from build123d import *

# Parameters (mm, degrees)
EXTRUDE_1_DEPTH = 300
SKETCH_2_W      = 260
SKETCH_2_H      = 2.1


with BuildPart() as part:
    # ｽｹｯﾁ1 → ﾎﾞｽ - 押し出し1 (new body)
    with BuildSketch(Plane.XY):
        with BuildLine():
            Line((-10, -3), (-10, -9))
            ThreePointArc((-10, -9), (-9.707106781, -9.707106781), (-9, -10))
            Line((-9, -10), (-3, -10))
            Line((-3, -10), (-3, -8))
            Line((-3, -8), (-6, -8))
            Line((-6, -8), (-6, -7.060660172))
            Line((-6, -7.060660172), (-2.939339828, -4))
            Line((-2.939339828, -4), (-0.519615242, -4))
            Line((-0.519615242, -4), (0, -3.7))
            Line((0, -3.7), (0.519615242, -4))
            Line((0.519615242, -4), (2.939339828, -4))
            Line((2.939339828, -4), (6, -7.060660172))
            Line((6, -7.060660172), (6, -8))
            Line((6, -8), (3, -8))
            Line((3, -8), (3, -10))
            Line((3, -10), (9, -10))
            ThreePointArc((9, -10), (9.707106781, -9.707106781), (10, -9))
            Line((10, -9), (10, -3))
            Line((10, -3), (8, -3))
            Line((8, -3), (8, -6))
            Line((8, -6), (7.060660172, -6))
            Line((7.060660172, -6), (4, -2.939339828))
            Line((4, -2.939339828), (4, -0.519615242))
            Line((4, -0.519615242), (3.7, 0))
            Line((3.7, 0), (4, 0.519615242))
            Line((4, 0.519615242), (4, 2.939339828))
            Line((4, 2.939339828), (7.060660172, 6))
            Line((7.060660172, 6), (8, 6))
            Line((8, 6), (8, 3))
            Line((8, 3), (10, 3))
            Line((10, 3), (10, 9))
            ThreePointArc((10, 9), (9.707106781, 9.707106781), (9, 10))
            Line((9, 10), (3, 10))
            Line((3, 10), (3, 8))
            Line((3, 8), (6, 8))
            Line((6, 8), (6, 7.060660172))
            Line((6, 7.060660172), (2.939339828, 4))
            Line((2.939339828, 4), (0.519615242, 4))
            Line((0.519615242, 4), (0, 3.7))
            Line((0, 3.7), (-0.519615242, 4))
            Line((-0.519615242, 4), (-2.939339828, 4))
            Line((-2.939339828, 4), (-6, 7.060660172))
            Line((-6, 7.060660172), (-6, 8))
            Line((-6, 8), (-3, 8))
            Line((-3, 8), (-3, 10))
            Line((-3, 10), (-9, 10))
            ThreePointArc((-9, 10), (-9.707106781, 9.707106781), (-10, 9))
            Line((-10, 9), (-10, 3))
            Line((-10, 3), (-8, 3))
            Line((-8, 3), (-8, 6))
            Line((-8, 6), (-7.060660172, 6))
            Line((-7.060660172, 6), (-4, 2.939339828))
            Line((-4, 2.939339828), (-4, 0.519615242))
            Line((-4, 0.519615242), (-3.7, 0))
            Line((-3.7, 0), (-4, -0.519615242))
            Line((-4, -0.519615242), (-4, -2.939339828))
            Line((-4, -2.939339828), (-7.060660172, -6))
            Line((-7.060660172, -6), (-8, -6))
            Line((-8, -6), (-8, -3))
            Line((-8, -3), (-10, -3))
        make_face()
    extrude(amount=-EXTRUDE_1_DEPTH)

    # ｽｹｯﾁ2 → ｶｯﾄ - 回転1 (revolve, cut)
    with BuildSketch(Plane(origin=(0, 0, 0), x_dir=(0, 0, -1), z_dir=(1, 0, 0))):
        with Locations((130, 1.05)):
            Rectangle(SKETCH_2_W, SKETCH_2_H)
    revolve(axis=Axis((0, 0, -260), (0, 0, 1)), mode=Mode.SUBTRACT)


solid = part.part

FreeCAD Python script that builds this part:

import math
import FreeCAD as App
import Part
import Sketcher
from FreeCAD import Vector
Q = App.Units.Quantity

doc = App.newDocument("Part")
body = doc.addObject("PartDesign::Body", "Body")

# Sketch on XY plane
sketch1 = body.newObject("Sketcher::SketchObject", "Sketch")
sketch1.AttachmentSupport = (doc.getObject("XY_Plane"), [""])
sketch1.MapMode = "FlatFace"
sketch1.addGeometry([
    Part.LineSegment(Vector(-10, -3, 0), Vector(-10, -9, 0)),  # 0
    Part.ArcOfCircle(Part.Circle(Vector(-9, -9, 0), Vector(0, 0, 1), 1), math.radians(-180), math.radians(-90)),  # 1
    Part.LineSegment(Vector(-9, -10, 0), Vector(-3, -10, 0)),  # 2
    Part.LineSegment(Vector(-3, -10, 0), Vector(-3, -8, 0)),  # 3
    Part.LineSegment(Vector(-3, -8, 0), Vector(-6, -8, 0)),  # 4
    Part.LineSegment(Vector(-6, -8, 0), Vector(-6, -7.1, 0)),  # 5
    Part.LineSegment(Vector(-6, -7.1, 0), Vector(-2.9, -4, 0)),  # 6
    Part.LineSegment(Vector(-2.9, -4, 0), Vector(-0.5, -4, 0)),  # 7
    Part.LineSegment(Vector(-0.5, -4, 0), Vector(0, -3.7, 0)),  # 8
    Part.LineSegment(Vector(0, -3.7, 0), Vector(0.5, -4, 0)),  # 9
    Part.LineSegment(Vector(0.5, -4, 0), Vector(2.9, -4, 0)),  # 10
    Part.LineSegment(Vector(2.9, -4, 0), Vector(6, -7.1, 0)),  # 11
    Part.LineSegment(Vector(6, -7.1, 0), Vector(6, -8, 0)),  # 12
    Part.LineSegment(Vector(6, -8, 0), Vector(3, -8, 0)),  # 13
    Part.LineSegment(Vector(3, -8, 0), Vector(3, -10, 0)),  # 14
    Part.LineSegment(Vector(3, -10, 0), Vector(9, -10, 0)),  # 15
    Part.ArcOfCircle(Part.Circle(Vector(9, -9, 0), Vector(0, 0, 1), 1), math.radians(-90), math.radians(0)),  # 16
    Part.LineSegment(Vector(10, -9, 0), Vector(10, -3, 0)),  # 17
    Part.LineSegment(Vector(10, -3, 0), Vector(8, -3, 0)),  # 18
    Part.LineSegment(Vector(8, -3, 0), Vector(8, -6, 0)),  # 19
    Part.LineSegment(Vector(8, -6, 0), Vector(7.1, -6, 0)),  # 20
    Part.LineSegment(Vector(7.1, -6, 0), Vector(4, -2.9, 0)),  # 21
    Part.LineSegment(Vector(4, -2.9, 0), Vector(4, -0.5, 0)),  # 22
    Part.LineSegment(Vector(4, -0.5, 0), Vector(3.7, 0, 0)),  # 23
    Part.LineSegment(Vector(3.7, 0, 0), Vector(4, 0.5, 0)),  # 24
    Part.LineSegment(Vector(4, 0.5, 0), Vector(4, 2.9, 0)),  # 25
    Part.LineSegment(Vector(4, 2.9, 0), Vector(7.1, 6, 0)),  # 26
    Part.LineSegment(Vector(7.1, 6, 0), Vector(8, 6, 0)),  # 27
    Part.LineSegment(Vector(8, 6, 0), Vector(8, 3, 0)),  # 28
    Part.LineSegment(Vector(8, 3, 0), Vector(10, 3, 0)),  # 29
    Part.LineSegment(Vector(10, 3, 0), Vector(10, 9, 0)),  # 30
    Part.ArcOfCircle(Part.Circle(Vector(9, 9, 0), Vector(0, 0, 1), 1), math.radians(0), math.radians(90)),  # 31
    Part.LineSegment(Vector(9, 10, 0), Vector(3, 10, 0)),  # 32
    Part.LineSegment(Vector(3, 10, 0), Vector(3, 8, 0)),  # 33
    Part.LineSegment(Vector(3, 8, 0), Vector(6, 8, 0)),  # 34
    Part.LineSegment(Vector(6, 8, 0), Vector(6, 7.1, 0)),  # 35
    Part.LineSegment(Vector(6, 7.1, 0), Vector(2.9, 4, 0)),  # 36
    Part.LineSegment(Vector(2.9, 4, 0), Vector(0.5, 4, 0)),  # 37
    Part.LineSegment(Vector(0.5, 4, 0), Vector(0, 3.7, 0)),  # 38
    Part.LineSegment(Vector(0, 3.7, 0), Vector(-0.5, 4, 0)),  # 39
    Part.LineSegment(Vector(-0.5, 4, 0), Vector(-2.9, 4, 0)),  # 40
    Part.LineSegment(Vector(-2.9, 4, 0), Vector(-6, 7.1, 0)),  # 41
    Part.LineSegment(Vector(-6, 7.1, 0), Vector(-6, 8, 0)),  # 42
    Part.LineSegment(Vector(-6, 8, 0), Vector(-3, 8, 0)),  # 43
    Part.LineSegment(Vector(-3, 8, 0), Vector(-3, 10, 0)),  # 44
    Part.LineSegment(Vector(-3, 10, 0), Vector(-9, 10, 0)),  # 45
    Part.ArcOfCircle(Part.Circle(Vector(-9, 9, 0), Vector(0, 0, 1), 1), math.radians(90), math.radians(180)),  # 46
    Part.LineSegment(Vector(-10, 9, 0), Vector(-10, 3, 0)),  # 47
    Part.LineSegment(Vector(-10, 3, 0), Vector(-8, 3, 0)),  # 48
    Part.LineSegment(Vector(-8, 3, 0), Vector(-8, 6, 0)),  # 49
    Part.LineSegment(Vector(-8, 6, 0), Vector(-7.1, 6, 0)),  # 50
    Part.LineSegment(Vector(-7.1, 6, 0), Vector(-4, 2.9, 0)),  # 51
    Part.LineSegment(Vector(-4, 2.9, 0), Vector(-4, 0.5, 0)),  # 52
    Part.LineSegment(Vector(-4, 0.5, 0), Vector(-3.7, 0, 0)),  # 53
    Part.LineSegment(Vector(-3.7, 0, 0), Vector(-4, -0.5, 0)),  # 54
    Part.LineSegment(Vector(-4, -0.5, 0), Vector(-4, -2.9, 0)),  # 55
    Part.LineSegment(Vector(-4, -2.9, 0), Vector(-7.1, -6, 0)),  # 56
    Part.LineSegment(Vector(-7.1, -6, 0), Vector(-8, -6, 0)),  # 57
    Part.LineSegment(Vector(-8, -6, 0), Vector(-8, -3, 0)),  # 58
    Part.LineSegment(Vector(-8, -3, 0), Vector(-10, -3, 0)),  # 59
], False)
sketch1.addConstraint([
    Sketcher.Constraint("Tangent", 0, 2, 1, 1),
    Sketcher.Constraint("Tangent", 1, 2, 2, 1),
    Sketcher.Constraint("Coincident", 2, 2, 3, 1),
    Sketcher.Constraint("Coincident", 3, 2, 4, 1),
    Sketcher.Constraint("Coincident", 4, 2, 5, 1),
    Sketcher.Constraint("Coincident", 5, 2, 6, 1),
    Sketcher.Constraint("Coincident", 6, 2, 7, 1),
    Sketcher.Constraint("Coincident", 7, 2, 8, 1),
    Sketcher.Constraint("Coincident", 8, 2, 9, 1),
    Sketcher.Constraint("Coincident", 9, 2, 10, 1),
    Sketcher.Constraint("Coincident", 10, 2, 11, 1),
    Sketcher.Constraint("Coincident", 11, 2, 12, 1),
    Sketcher.Constraint("Coincident", 12, 2, 13, 1),
    Sketcher.Constraint("Coincident", 13, 2, 14, 1),
    Sketcher.Constraint("Coincident", 14, 2, 15, 1),
    Sketcher.Constraint("Tangent", 15, 2, 16, 1),
    Sketcher.Constraint("Tangent", 16, 2, 17, 1),
    Sketcher.Constraint("Coincident", 17, 2, 18, 1),
    Sketcher.Constraint("Coincident", 18, 2, 19, 1),
    Sketcher.Constraint("Coincident", 19, 2, 20, 1),
    Sketcher.Constraint("Coincident", 20, 2, 21, 1),
    Sketcher.Constraint("Coincident", 21, 2, 22, 1),
    Sketcher.Constraint("Coincident", 22, 2, 23, 1),
    Sketcher.Constraint("Coincident", 23, 2, 24, 1),
    Sketcher.Constraint("Coincident", 24, 2, 25, 1),
    Sketcher.Constraint("Coincident", 25, 2, 26, 1),
    Sketcher.Constraint("Coincident", 26, 2, 27, 1),
    Sketcher.Constraint("Coincident", 27, 2, 28, 1),
    Sketcher.Constraint("Coincident", 28, 2, 29, 1),
    Sketcher.Constraint("Coincident", 29, 2, 30, 1),
    Sketcher.Constraint("Tangent", 30, 2, 31, 1),
    Sketcher.Constraint("Tangent", 31, 2, 32, 1),
    Sketcher.Constraint("Coincident", 32, 2, 33, 1),
    Sketcher.Constraint("Coincident", 33, 2, 34, 1),
    Sketcher.Constraint("Coincident", 34, 2, 35, 1),
    Sketcher.Constraint("Coincident", 35, 2, 36, 1),
    Sketcher.Constraint("Coincident", 36, 2, 37, 1),
    Sketcher.Constraint("Coincident", 37, 2, 38, 1),
    Sketcher.Constraint("Coincident", 38, 2, 39, 1),
    Sketcher.Constraint("Coincident", 39, 2, 40, 1),
    Sketcher.Constraint("Coincident", 40, 2, 41, 1),
    Sketcher.Constraint("Coincident", 41, 2, 42, 1),
    Sketcher.Constraint("Coincident", 42, 2, 43, 1),
    Sketcher.Constraint("Coincident", 43, 2, 44, 1),
    Sketcher.Constraint("Coincident", 44, 2, 45, 1),
    Sketcher.Constraint("Tangent", 45, 2, 46, 1),
    Sketcher.Constraint("Tangent", 46, 2, 47, 1),
    Sketcher.Constraint("Coincident", 47, 2, 48, 1),
    Sketcher.Constraint("Coincident", 48, 2, 49, 1),
    Sketcher.Constraint("Coincident", 49, 2, 50, 1),
    Sketcher.Constraint("Coincident", 50, 2, 51, 1),
    Sketcher.Constraint("Coincident", 51, 2, 52, 1),
    Sketcher.Constraint("Coincident", 52, 2, 53, 1),
    Sketcher.Constraint("Coincident", 53, 2, 54, 1),
    Sketcher.Constraint("Coincident", 54, 2, 55, 1),
    Sketcher.Constraint("Coincident", 55, 2, 56, 1),
    Sketcher.Constraint("Coincident", 56, 2, 57, 1),
    Sketcher.Constraint("Coincident", 57, 2, 58, 1),
    Sketcher.Constraint("Coincident", 58, 2, 59, 1),
    Sketcher.Constraint("Coincident", 59, 2, 0, 1),
    Sketcher.Constraint("Vertical", 0),
    Sketcher.Constraint("Horizontal", 2),
    Sketcher.Constraint("Vertical", 3),
    Sketcher.Constraint("Horizontal", 4),
    Sketcher.Constraint("Vertical", 5),
    Sketcher.Constraint("Horizontal", 7),
    Sketcher.Constraint("Horizontal", 10),
    Sketcher.Constraint("Vertical", 12),
    Sketcher.Constraint("Horizontal", 13),
    Sketcher.Constraint("Vertical", 14),
    Sketcher.Constraint("Horizontal", 15),
    Sketcher.Constraint("Vertical", 17),
    Sketcher.Constraint("Horizontal", 18),
    Sketcher.Constraint("Vertical", 19),
    Sketcher.Constraint("Horizontal", 20),
    Sketcher.Constraint("Vertical", 22),
    Sketcher.Constraint("Vertical", 25),
    Sketcher.Constraint("Horizontal", 27),
    Sketcher.Constraint("Vertical", 28),
    Sketcher.Constraint("Horizontal", 29),
    Sketcher.Constraint("Vertical", 30),
    Sketcher.Constraint("Horizontal", 32),
    Sketcher.Constraint("Vertical", 33),
    Sketcher.Constraint("Horizontal", 34),
    Sketcher.Constraint("Vertical", 35),
    Sketcher.Constraint("Horizontal", 37),
    Sketcher.Constraint("Horizontal", 40),
    Sketcher.Constraint("Vertical", 42),
    Sketcher.Constraint("Horizontal", 43),
    Sketcher.Constraint("Vertical", 44),
    Sketcher.Constraint("Horizontal", 45),
    Sketcher.Constraint("Vertical", 47),
    Sketcher.Constraint("Horizontal", 48),
    Sketcher.Constraint("Vertical", 49),
    Sketcher.Constraint("Horizontal", 50),
    Sketcher.Constraint("Vertical", 52),
    Sketcher.Constraint("Vertical", 55),
    Sketcher.Constraint("Horizontal", 57),
    Sketcher.Constraint("Vertical", 58),
    Sketcher.Constraint("Horizontal", 59),
    Sketcher.Constraint("Equal", 1, 16),
    Sketcher.Constraint("Equal", 16, 31),
    Sketcher.Constraint("Equal", 31, 46),
    Sketcher.Constraint("Symmetric", 1, 3, 31, 3, -1, 1),
    Sketcher.Constraint("Symmetric", 16, 3, 46, 3, -1, 1),
    Sketcher.Constraint("Symmetric", 3, 2, 33, 2, -1, 1),
    Sketcher.Constraint("Symmetric", 5, 2, 35, 2, -1, 1),
    Sketcher.Constraint("Symmetric", 6, 2, 36, 2, -1, 1),
    Sketcher.Constraint("Symmetric", 8, 2, 38, 2, -1, 1),
    Sketcher.Constraint("Symmetric", 9, 2, 39, 2, -1, 1),
    Sketcher.Constraint("Symmetric", 11, 2, 41, 2, -1, 1),
    Sketcher.Constraint("Symmetric", 13, 2, 43, 2, -1, 1),
    Sketcher.Constraint("Symmetric", 18, 2, 48, 2, -1, 1),
    Sketcher.Constraint("Symmetric", 20, 2, 50, 2, -1, 1),
    Sketcher.Constraint("Symmetric", 21, 2, 51, 2, -1, 1),
    Sketcher.Constraint("Symmetric", 23, 2, 53, 2, -1, 1),
    Sketcher.Constraint("Symmetric", 24, 2, 54, 2, -1, 1),
    Sketcher.Constraint("Symmetric", 26, 2, 56, 2, -1, 1),
    Sketcher.Constraint("Symmetric", 28, 2, 58, 2, -1, 1),
    Sketcher.Constraint("Symmetric", 1, 3, 16, 3, -2),
    Sketcher.Constraint("Symmetric", 7, 2, 9, 2, -2),
    Sketcher.Constraint("Symmetric", 5, 2, 11, 2, -2),
    Sketcher.Constraint("Symmetric", 3, 2, 13, 2, -2),
    Sketcher.Constraint("Symmetric", 28, 2, 48, 2, -2),
    Sketcher.Constraint("Symmetric", 26, 2, 50, 2, -2),
    Sketcher.Constraint("Symmetric", 25, 2, 51, 2, -2),
    Sketcher.Constraint("PointOnObject", 8, 2, -2),
    Sketcher.Constraint("PointOnObject", 23, 2, -1),
    Sketcher.Constraint("Perpendicular", 6, 11),
    Sketcher.Constraint("Parallel", 11, 21),
    Sketcher.Constraint("Perpendicular", 8, 23),
    Sketcher.Constraint("Perpendicular", 9, 24),
    Sketcher.Constraint("Perpendicular", 21, 26),
    Sketcher.Constraint("Perpendicular", 23, 38),
    Sketcher.Constraint("Perpendicular", 36, 41),
    Sketcher.Constraint("Perpendicular", 38, 53),
    Sketcher.Constraint("Perpendicular", 51, 56),
    Sketcher.Constraint("Equal", 45, 0),
    Sketcher.Constraint("Equal", 59, 3),
    Sketcher.Constraint("Equal", 57, 5),
    Sketcher.Constraint("Equal", 43, 19),
    Sketcher.Constraint("Equal", 40, 22),
    Sketcher.Constraint("Equal", 11, 21),
    Sketcher.Constraint("Equal", 9, 23),
    Sketcher.Constraint("Radius", 1, Q("1 mm")),
    Sketcher.Constraint("DistanceX", 2, 1, 2, 2, Q("6 mm")),
    Sketcher.Constraint("DistanceX", 4, 2, 4, 1, Q("3 mm")),
    Sketcher.Constraint("DistanceX", 18, 2, 18, 1, Q("2 mm")),
    Sketcher.Constraint("Angle", 8, Q("30 deg")),
    Sketcher.Constraint("DistanceX", 1, 3, -1, 1, Q("9 mm")),
    Sketcher.Constraint("DistanceY", 6, 2, -1, 1, Q("4 mm")),
    Sketcher.Constraint("Distance", 8, Q("0.6 mm")),
    Sketcher.Constraint("DistanceX", 20, 2, 20, 1, Q("0.93934 mm")),
])
pad1 = body.newObject("PartDesign::Pad", "Pad")
pad1.Profile = sketch1
pad1.Length = 300
pad1.Reversed = True

# Sketch on YZ plane
sketch2 = body.newObject("Sketcher::SketchObject", "Sketch001")
sketch2.AttachmentSupport = (doc.getObject("YZ_Plane"), [""])
sketch2.MapMode = "FlatFace"
sketch2.addGeometry([
    Part.LineSegment(Vector(2.1, 0, 0), Vector(0, 0, 0)),
    Part.LineSegment(Vector(0, 0, 0), Vector(0, -260, 0)),
    Part.LineSegment(Vector(0, -260, 0), Vector(2.1, -260, 0)),
    Part.LineSegment(Vector(2.1, -260, 0), Vector(2.1, 0, 0)),
], False)
sketch2.addConstraint([
    Sketcher.Constraint("Coincident", 0, 2, 1, 1),
    Sketcher.Constraint("Coincident", 1, 2, 2, 1),
    Sketcher.Constraint("Coincident", 2, 2, 3, 1),
    Sketcher.Constraint("Coincident", 3, 2, 0, 1),
    Sketcher.Constraint("Horizontal", 0),
    Sketcher.Constraint("Vertical", 1),
    Sketcher.Constraint("Horizontal", 2),
    Sketcher.Constraint("Vertical", 3),
    Sketcher.Constraint("Coincident", 0, 2, -1, 1),
    Sketcher.Constraint("DistanceY", 1, 2, 1, 1, Q("260 mm")),
    Sketcher.Constraint("DistanceX", 0, 2, 0, 1, Q("2.1 mm")),
])
groove = body.newObject("PartDesign::Groove", "Groove")
groove.Profile = sketch2
groove.ReferenceAxis = (sketch2, ["V_Axis"])
groove.Angle = 360

doc.recompute()
